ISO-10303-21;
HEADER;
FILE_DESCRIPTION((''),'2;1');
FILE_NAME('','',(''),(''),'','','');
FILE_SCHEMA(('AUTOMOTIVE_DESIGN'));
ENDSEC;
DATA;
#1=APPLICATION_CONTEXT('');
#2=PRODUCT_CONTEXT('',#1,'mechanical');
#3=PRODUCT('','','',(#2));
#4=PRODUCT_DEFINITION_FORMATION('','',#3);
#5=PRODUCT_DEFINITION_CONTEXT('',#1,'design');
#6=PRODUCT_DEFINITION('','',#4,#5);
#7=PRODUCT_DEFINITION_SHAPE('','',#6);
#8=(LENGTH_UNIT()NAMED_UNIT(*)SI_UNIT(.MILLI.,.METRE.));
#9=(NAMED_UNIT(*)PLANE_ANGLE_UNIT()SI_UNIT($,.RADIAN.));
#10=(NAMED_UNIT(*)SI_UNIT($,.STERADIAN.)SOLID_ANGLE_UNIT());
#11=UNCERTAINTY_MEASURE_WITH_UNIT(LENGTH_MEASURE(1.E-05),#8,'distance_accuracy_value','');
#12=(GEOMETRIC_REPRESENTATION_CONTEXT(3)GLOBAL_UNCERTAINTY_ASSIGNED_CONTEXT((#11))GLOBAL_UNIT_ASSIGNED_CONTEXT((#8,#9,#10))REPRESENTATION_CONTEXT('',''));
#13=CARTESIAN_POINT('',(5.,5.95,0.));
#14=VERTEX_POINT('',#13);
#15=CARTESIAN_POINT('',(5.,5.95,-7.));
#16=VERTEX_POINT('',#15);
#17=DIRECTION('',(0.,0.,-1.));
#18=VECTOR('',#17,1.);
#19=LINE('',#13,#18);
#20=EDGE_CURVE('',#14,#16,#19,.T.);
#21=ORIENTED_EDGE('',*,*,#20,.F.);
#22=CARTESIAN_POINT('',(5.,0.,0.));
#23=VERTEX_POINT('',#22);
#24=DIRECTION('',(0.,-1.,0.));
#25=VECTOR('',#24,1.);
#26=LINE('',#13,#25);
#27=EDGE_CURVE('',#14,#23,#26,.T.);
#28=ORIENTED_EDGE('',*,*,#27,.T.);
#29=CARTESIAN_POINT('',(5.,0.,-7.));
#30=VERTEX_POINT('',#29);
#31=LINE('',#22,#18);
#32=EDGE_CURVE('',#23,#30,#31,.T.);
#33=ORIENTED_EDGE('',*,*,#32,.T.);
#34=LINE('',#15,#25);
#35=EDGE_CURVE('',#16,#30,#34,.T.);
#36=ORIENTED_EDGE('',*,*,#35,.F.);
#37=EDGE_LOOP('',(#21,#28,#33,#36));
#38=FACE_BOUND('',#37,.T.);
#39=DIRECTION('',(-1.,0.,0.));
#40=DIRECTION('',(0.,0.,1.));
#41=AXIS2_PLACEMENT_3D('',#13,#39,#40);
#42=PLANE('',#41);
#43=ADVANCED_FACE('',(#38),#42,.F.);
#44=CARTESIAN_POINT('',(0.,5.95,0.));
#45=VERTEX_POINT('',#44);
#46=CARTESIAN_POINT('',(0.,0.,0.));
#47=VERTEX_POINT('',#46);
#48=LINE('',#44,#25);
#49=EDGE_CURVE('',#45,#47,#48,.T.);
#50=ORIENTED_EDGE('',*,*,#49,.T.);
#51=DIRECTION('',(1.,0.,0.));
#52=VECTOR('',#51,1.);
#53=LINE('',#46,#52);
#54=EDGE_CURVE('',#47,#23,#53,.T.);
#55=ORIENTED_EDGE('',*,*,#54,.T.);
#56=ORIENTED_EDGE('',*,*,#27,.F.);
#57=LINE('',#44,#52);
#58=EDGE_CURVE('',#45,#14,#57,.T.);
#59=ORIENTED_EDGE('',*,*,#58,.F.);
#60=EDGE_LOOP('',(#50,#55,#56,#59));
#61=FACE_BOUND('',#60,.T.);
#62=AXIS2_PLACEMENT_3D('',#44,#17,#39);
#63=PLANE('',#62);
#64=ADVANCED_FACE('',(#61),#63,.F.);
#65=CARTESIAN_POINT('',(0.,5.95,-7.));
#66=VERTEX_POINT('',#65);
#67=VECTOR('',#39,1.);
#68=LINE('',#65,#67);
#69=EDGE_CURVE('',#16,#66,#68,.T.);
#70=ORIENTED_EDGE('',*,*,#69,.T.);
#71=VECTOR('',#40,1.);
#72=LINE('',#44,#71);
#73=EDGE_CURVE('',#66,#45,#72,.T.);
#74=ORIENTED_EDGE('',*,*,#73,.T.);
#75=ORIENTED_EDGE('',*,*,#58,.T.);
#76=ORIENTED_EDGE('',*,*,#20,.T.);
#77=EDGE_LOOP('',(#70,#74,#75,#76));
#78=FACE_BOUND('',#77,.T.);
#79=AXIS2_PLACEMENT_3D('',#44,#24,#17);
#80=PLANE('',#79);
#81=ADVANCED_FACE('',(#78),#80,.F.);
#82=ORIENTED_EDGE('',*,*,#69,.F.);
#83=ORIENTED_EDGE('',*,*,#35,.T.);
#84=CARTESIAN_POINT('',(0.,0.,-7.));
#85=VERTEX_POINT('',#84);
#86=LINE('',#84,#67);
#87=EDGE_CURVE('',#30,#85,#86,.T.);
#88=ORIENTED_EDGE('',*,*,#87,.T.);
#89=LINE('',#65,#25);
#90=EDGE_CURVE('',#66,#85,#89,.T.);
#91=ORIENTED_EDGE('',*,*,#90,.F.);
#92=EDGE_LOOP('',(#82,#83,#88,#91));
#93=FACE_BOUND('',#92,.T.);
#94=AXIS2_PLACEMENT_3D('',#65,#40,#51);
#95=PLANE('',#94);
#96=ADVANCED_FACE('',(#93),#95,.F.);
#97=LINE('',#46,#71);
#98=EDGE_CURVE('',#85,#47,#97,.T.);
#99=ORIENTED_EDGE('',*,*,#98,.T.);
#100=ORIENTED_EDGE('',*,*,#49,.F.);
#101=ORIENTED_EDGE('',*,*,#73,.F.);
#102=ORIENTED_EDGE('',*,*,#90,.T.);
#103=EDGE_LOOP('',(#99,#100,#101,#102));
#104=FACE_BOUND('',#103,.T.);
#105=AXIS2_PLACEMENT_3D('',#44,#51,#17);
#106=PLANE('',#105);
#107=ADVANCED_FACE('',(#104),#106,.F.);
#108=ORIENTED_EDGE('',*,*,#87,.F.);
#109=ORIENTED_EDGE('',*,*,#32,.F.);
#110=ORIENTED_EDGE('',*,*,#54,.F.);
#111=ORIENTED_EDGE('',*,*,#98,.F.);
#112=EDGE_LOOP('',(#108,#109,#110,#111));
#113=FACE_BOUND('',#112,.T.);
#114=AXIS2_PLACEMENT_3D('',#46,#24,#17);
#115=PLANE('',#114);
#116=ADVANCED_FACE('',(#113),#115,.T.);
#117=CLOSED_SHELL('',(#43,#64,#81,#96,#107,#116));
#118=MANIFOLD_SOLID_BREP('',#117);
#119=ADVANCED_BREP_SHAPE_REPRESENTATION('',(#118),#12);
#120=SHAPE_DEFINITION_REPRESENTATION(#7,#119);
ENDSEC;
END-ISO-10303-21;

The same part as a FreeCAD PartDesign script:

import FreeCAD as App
import Part
import Sketcher
from FreeCAD import Vector


def add_polygon(sketch, points):
    """Adds a closed chain of lines whose ends are joined by coincident constraints."""
    first, n = sketch.GeometryCount, len(points)
    for a, b in zip(points, points[1:] + points[:1]):
        sketch.addGeometry(Part.LineSegment(App.Vector(*a, 0), App.Vector(*b, 0)), False)
    for i in range(n):
        sketch.addConstraint(Sketcher.Constraint("Coincident", first + i, 2, first + (i + 1) % n, 1))

doc = App.newDocument("Part")
body = doc.addObject("PartDesign::Body", "Body")

# Sketch on XZ plane
sketch1 = body.newObject("Sketcher::SketchObject", "Sketch")
sketch1.AttachmentSupport = (doc.getObject("XZ_Plane"), [""])
sketch1.MapMode = "FlatFace"
add_polygon(sketch1, [(0, -7), (0, 0), (5, 0), (5, -7)])  # lines 0-3
sketch1.addConstraint(Sketcher.Constraint("Vertical", 0))
sketch1.addConstraint(Sketcher.Constraint("Horizontal", 1))
sketch1.addConstraint(Sketcher.Constraint("Vertical", 2))
sketch1.addConstraint(Sketcher.Constraint("Horizontal", 3))
sketch1.addConstraint(Sketcher.Constraint("Coincident", 0, 2, -1, 1))
sketch1.addConstraint(Sketcher.Constraint("DistanceX", 1, 1, 1, 2, 5.0))
sketch1.addConstraint(Sketcher.Constraint("DistanceY", 0, 1, 0, 2, 7.0))
pad1 = body.newObject("PartDesign::Pad", "Pad")
pad1.Profile = sketch1
pad1.Length = 5.95
pad1.Reversed = True

doc.recompute()
